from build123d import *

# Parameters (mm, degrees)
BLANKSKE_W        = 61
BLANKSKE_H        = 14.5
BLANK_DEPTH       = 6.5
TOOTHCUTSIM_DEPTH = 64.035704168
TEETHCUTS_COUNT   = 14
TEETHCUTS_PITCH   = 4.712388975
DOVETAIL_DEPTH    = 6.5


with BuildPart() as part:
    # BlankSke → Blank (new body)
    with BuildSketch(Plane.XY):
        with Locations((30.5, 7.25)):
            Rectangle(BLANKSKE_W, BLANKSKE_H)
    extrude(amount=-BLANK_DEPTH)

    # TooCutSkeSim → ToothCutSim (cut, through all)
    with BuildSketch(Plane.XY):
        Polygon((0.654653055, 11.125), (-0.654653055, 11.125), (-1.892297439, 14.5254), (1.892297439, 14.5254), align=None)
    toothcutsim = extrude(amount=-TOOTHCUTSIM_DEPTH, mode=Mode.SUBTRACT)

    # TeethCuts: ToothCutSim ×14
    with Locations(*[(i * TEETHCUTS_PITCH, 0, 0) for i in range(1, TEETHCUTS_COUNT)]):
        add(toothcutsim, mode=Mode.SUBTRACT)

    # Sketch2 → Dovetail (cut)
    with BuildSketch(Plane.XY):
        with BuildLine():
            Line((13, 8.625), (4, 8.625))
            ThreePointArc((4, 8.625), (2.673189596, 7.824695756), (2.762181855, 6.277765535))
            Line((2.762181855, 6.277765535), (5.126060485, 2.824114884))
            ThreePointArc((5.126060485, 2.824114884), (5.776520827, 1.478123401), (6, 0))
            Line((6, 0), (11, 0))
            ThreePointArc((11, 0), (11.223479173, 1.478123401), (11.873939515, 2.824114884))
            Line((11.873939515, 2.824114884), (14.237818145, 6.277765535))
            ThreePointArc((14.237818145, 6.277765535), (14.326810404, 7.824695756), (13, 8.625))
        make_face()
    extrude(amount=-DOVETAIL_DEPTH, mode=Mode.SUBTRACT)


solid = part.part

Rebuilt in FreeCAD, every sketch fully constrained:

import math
import FreeCAD as App
import Part
import Sketcher
Q = App.Units.Quantity

doc = App.newDocument("Part")
body = doc.addObject("PartDesign::Body", "Body")

sketch1 = doc.addObject("Sketcher::SketchObject", "Sketch")
body.addObject(sketch1)
sketch1.AttachmentSupport = (doc.XY_Plane, [""])
sketch1.MapMode = "FlatFace"
sketch1.addGeometry(Part.LineSegment(App.Vector(0, 14.5, 0), App.Vector(0, 0, 0)), False)
sketch1.addGeometry(Part.LineSegment(App.Vector(0, 0, 0), App.Vector(61, 0, 0)), False)
sketch1.addGeometry(Part.LineSegment(App.Vector(61, 0, 0), App.Vector(61, 14.5, 0)), False)
sketch1.addGeometry(Part.LineSegment(App.Vector(61, 14.5, 0), App.Vector(0, 14.5, 0)), False)
sketch1.addConstraint(Sketcher.Constraint("Coincident", 0, 2, 1, 1))
sketch1.addConstraint(Sketcher.Constraint("Coincident", 1, 2, 2, 1))
sketch1.addConstraint(Sketcher.Constraint("Coincident", 2, 2, 3, 1))
sketch1.addConstraint(Sketcher.Constraint("Coincident", 3, 2, 0, 1))
sketch1.addConstraint(Sketcher.Constraint("Vertical", 0))
sketch1.addConstraint(Sketcher.Constraint("Horizontal", 1))
sketch1.addConstraint(Sketcher.Constraint("Vertical", 2))
sketch1.addConstraint(Sketcher.Constraint("Horizontal", 3))
sketch1.addConstraint(Sketcher.Constraint("Coincident", 0, 2, -1, 1))
sketch1.addConstraint(Sketcher.Constraint("DistanceX", 1, 1, 1, 2, Q("61 mm")))
sketch1.addConstraint(Sketcher.Constraint("DistanceY", 0, 2, 0, 1, Q("14.5 mm")))
pad1 = doc.addObject("PartDesign::Pad", "Pad")
body.addObject(pad1)
pad1.Profile = sketch1
pad1.Length = 6.5
pad1.Reversed = True

sketch2 = doc.addObject("Sketcher::SketchObject", "Sketch001")
body.addObject(sketch2)
sketch2.AttachmentSupport = (doc.XY_Plane, [""])
sketch2.MapMode = "FlatFace"
sketch2.addGeometry(Part.LineSegment(App.Vector(-0.654653, 11.125, 0), App.Vector(0.654653, 11.125, 0)), False)
sketch2.addGeometry(Part.LineSegment(App.Vector(0.654653, 11.125, 0), App.Vector(1.892297, 14.5254, 0)), False)
sketch2.addGeometry(Part.LineSegment(App.Vector(1.892297, 14.5254, 0), App.Vector(-1.892297, 14.5254, 0)), False)
sketch2.addGeometry(Part.LineSegment(App.Vector(-1.892297, 14.5254, 0), App.Vector(-0.654653, 11.125, 0)), False)
sketch2.addConstraint(Sketcher.Constraint("Coincident", 0, 2, 1, 1))
sketch2.addConstraint(Sketcher.Constraint("Coincident", 1, 2, 2, 1))
sketch2.addConstraint(Sketcher.Constraint("Coincident", 2, 2, 3, 1))
sketch2.addConstraint(Sketcher.Constraint("Coincident", 3, 2, 0, 1))
sketch2.addConstraint(Sketcher.Constraint("Horizontal", 0))
sketch2.addConstraint(Sketcher.Constraint("Horizontal", 2))
sketch2.addConstraint(Sketcher.Constraint("Equal", 1, 3))
sketch2.addConstraint(Sketcher.Constraint("Angle", 1, Q("70 deg")))
sketch2.addConstraint(Sketcher.Constraint("DistanceY", -1, 1, 0, 2, Q("11.125 mm")))
sketch2.addConstraint(Sketcher.Constraint("DistanceY", -1, 1, 1, 2, Q("14.5254 mm")))
sketch2.addConstraint(Sketcher.Constraint("DistanceX", 0, 1, 0, 2, Q("1.309306 mm")))
sketch2.addConstraint(Sketcher.Constraint("DistanceX", -1, 1, 0, 2, Q("0.654653 mm")))
pocket1 = doc.addObject("PartDesign::Pocket", "Pocket")
body.addObject(pocket1)
pocket1.Profile = sketch2
pocket1.Type = "ThroughAll"
doc.recompute()

linearpattern = doc.addObject("PartDesign::LinearPattern", "LinearPattern")
body.addObject(linearpattern)
linearpattern.Originals = [pocket1]
linearpattern.Direction = (doc.X_Axis, [""])
linearpattern.Mode = "offset"
linearpattern.Offset = 4.712389
linearpattern.Occurrences = 14
body.Tip = linearpattern

sketch3 = doc.addObject("Sketcher::SketchObject", "Sketch002")
body.addObject(sketch3)
sketch3.AttachmentSupport = (doc.XY_Plane, [""])
sketch3.MapMode = "FlatFace"
sketch3.addGeometry(Part.LineSegment(App.Vector(13, 8.625, 0), App.Vector(4, 8.625, 0)), False)
sketch3.addGeometry(Part.ArcOfCircle(Part.Circle(App.Vector(4, 7.125, 0), App.Vector(0, 0, 1), 1.5), math.radians(90), math.radians(214.389999)), False)
sketch3.addGeometry(Part.LineSegment(App.Vector(2.762182, 6.277766, 0), App.Vector(5.12606, 2.824115, 0)), False)
sketch3.addGeometry(Part.ArcOfCircle(Part.Circle(App.Vector(1, 0, 0), App.Vector(0, 0, 1), 5), math.radians(0), math.radians(34.389999)), False)
sketch3.addGeometry(Part.LineSegment(App.Vector(6, 0, 0), App.Vector(11, 0, 0)), False)
sketch3.addGeometry(Part.ArcOfCircle(Part.Circle(App.Vector(16, 0, 0), App.Vector(0, 0, 1), 5), math.radians(145.610001), math.radians(180)), False)
sketch3.addGeometry(Part.LineSegment(App.Vector(11.87394, 2.824115, 0), App.Vector(14.237818, 6.277766, 0)), False)
sketch3.addGeometry(Part.ArcOfCircle(Part.Circle(App.Vector(13, 7.125, 0), App.Vector(0, 0, 1), 1.5), math.radians(-34.389999), math.radians(90)), False)
sketch3.addConstraint(Sketcher.Constraint("Tangent", 0, 2, 1, 1))
sketch3.addConstraint(Sketcher.Constraint("Tangent", 1, 2, 2, 1))
sketch3.addConstraint(Sketcher.Constraint("Tangent", 2, 2, 3, 2))
sketch3.addConstraint(Sketcher.Constraint("Coincident", 3, 1, 4, 1))
sketch3.addConstraint(Sketcher.Constraint("Coincident", 4, 2, 5, 2))
sketch3.addConstraint(Sketcher.Constraint("Tangent", 5, 1, 6, 1))
sketch3.addConstraint(Sketcher.Constraint("Tangent", 6, 2, 7, 1))
sketch3.addConstraint(Sketcher.Constraint("Tangent", 7, 2, 0, 1))
sketch3.addConstraint(Sketcher.Constraint("Horizontal", 0))
sketch3.addConstraint(Sketcher.Constraint("Horizontal", 4))
sketch3.addConstraint(Sketcher.Constraint("Equal", 3, 5))
sketch3.addConstraint(Sketcher.Constraint("Equal", 1, 7))
sketch3.addConstraint(Sketcher.Constraint("PointOnObject", 3, 3, -1))
sketch3.addConstraint(Sketcher.Constraint("PointOnObject", 5, 3, -1))
sketch3.addConstraint(Sketcher.Constraint("PointOnObject", 3, 1, -1))
sketch3.addConstraint(Sketcher.Constraint("Horizontal", 2, 2, 5, 1))
sketch3.addConstraint(Sketcher.Constraint("Radius", 3, Q("5 mm")))
sketch3.addConstraint(Sketcher.Constraint("Radius", 1, Q("1.5 mm")))
sketch3.addConstraint(Sketcher.Constraint("DistanceX", 0, 2, 0, 1, Q("9 mm")))
sketch3.addConstraint(Sketcher.Constraint("DistanceX", 4, 1, 4, 2, Q("5 mm")))
sketch3.addConstraint(Sketcher.Constraint("DistanceX", -1, 1, 1, 3, Q("4 mm")))
sketch3.addConstraint(Sketcher.Constraint("Angle", 2, Q("-55.610001 deg")))
pocket2 = doc.addObject("PartDesign::Pocket", "Pocket001")
body.addObject(pocket2)
pocket2.Profile = sketch3
pocket2.Length = 6.5

doc.recompute()
